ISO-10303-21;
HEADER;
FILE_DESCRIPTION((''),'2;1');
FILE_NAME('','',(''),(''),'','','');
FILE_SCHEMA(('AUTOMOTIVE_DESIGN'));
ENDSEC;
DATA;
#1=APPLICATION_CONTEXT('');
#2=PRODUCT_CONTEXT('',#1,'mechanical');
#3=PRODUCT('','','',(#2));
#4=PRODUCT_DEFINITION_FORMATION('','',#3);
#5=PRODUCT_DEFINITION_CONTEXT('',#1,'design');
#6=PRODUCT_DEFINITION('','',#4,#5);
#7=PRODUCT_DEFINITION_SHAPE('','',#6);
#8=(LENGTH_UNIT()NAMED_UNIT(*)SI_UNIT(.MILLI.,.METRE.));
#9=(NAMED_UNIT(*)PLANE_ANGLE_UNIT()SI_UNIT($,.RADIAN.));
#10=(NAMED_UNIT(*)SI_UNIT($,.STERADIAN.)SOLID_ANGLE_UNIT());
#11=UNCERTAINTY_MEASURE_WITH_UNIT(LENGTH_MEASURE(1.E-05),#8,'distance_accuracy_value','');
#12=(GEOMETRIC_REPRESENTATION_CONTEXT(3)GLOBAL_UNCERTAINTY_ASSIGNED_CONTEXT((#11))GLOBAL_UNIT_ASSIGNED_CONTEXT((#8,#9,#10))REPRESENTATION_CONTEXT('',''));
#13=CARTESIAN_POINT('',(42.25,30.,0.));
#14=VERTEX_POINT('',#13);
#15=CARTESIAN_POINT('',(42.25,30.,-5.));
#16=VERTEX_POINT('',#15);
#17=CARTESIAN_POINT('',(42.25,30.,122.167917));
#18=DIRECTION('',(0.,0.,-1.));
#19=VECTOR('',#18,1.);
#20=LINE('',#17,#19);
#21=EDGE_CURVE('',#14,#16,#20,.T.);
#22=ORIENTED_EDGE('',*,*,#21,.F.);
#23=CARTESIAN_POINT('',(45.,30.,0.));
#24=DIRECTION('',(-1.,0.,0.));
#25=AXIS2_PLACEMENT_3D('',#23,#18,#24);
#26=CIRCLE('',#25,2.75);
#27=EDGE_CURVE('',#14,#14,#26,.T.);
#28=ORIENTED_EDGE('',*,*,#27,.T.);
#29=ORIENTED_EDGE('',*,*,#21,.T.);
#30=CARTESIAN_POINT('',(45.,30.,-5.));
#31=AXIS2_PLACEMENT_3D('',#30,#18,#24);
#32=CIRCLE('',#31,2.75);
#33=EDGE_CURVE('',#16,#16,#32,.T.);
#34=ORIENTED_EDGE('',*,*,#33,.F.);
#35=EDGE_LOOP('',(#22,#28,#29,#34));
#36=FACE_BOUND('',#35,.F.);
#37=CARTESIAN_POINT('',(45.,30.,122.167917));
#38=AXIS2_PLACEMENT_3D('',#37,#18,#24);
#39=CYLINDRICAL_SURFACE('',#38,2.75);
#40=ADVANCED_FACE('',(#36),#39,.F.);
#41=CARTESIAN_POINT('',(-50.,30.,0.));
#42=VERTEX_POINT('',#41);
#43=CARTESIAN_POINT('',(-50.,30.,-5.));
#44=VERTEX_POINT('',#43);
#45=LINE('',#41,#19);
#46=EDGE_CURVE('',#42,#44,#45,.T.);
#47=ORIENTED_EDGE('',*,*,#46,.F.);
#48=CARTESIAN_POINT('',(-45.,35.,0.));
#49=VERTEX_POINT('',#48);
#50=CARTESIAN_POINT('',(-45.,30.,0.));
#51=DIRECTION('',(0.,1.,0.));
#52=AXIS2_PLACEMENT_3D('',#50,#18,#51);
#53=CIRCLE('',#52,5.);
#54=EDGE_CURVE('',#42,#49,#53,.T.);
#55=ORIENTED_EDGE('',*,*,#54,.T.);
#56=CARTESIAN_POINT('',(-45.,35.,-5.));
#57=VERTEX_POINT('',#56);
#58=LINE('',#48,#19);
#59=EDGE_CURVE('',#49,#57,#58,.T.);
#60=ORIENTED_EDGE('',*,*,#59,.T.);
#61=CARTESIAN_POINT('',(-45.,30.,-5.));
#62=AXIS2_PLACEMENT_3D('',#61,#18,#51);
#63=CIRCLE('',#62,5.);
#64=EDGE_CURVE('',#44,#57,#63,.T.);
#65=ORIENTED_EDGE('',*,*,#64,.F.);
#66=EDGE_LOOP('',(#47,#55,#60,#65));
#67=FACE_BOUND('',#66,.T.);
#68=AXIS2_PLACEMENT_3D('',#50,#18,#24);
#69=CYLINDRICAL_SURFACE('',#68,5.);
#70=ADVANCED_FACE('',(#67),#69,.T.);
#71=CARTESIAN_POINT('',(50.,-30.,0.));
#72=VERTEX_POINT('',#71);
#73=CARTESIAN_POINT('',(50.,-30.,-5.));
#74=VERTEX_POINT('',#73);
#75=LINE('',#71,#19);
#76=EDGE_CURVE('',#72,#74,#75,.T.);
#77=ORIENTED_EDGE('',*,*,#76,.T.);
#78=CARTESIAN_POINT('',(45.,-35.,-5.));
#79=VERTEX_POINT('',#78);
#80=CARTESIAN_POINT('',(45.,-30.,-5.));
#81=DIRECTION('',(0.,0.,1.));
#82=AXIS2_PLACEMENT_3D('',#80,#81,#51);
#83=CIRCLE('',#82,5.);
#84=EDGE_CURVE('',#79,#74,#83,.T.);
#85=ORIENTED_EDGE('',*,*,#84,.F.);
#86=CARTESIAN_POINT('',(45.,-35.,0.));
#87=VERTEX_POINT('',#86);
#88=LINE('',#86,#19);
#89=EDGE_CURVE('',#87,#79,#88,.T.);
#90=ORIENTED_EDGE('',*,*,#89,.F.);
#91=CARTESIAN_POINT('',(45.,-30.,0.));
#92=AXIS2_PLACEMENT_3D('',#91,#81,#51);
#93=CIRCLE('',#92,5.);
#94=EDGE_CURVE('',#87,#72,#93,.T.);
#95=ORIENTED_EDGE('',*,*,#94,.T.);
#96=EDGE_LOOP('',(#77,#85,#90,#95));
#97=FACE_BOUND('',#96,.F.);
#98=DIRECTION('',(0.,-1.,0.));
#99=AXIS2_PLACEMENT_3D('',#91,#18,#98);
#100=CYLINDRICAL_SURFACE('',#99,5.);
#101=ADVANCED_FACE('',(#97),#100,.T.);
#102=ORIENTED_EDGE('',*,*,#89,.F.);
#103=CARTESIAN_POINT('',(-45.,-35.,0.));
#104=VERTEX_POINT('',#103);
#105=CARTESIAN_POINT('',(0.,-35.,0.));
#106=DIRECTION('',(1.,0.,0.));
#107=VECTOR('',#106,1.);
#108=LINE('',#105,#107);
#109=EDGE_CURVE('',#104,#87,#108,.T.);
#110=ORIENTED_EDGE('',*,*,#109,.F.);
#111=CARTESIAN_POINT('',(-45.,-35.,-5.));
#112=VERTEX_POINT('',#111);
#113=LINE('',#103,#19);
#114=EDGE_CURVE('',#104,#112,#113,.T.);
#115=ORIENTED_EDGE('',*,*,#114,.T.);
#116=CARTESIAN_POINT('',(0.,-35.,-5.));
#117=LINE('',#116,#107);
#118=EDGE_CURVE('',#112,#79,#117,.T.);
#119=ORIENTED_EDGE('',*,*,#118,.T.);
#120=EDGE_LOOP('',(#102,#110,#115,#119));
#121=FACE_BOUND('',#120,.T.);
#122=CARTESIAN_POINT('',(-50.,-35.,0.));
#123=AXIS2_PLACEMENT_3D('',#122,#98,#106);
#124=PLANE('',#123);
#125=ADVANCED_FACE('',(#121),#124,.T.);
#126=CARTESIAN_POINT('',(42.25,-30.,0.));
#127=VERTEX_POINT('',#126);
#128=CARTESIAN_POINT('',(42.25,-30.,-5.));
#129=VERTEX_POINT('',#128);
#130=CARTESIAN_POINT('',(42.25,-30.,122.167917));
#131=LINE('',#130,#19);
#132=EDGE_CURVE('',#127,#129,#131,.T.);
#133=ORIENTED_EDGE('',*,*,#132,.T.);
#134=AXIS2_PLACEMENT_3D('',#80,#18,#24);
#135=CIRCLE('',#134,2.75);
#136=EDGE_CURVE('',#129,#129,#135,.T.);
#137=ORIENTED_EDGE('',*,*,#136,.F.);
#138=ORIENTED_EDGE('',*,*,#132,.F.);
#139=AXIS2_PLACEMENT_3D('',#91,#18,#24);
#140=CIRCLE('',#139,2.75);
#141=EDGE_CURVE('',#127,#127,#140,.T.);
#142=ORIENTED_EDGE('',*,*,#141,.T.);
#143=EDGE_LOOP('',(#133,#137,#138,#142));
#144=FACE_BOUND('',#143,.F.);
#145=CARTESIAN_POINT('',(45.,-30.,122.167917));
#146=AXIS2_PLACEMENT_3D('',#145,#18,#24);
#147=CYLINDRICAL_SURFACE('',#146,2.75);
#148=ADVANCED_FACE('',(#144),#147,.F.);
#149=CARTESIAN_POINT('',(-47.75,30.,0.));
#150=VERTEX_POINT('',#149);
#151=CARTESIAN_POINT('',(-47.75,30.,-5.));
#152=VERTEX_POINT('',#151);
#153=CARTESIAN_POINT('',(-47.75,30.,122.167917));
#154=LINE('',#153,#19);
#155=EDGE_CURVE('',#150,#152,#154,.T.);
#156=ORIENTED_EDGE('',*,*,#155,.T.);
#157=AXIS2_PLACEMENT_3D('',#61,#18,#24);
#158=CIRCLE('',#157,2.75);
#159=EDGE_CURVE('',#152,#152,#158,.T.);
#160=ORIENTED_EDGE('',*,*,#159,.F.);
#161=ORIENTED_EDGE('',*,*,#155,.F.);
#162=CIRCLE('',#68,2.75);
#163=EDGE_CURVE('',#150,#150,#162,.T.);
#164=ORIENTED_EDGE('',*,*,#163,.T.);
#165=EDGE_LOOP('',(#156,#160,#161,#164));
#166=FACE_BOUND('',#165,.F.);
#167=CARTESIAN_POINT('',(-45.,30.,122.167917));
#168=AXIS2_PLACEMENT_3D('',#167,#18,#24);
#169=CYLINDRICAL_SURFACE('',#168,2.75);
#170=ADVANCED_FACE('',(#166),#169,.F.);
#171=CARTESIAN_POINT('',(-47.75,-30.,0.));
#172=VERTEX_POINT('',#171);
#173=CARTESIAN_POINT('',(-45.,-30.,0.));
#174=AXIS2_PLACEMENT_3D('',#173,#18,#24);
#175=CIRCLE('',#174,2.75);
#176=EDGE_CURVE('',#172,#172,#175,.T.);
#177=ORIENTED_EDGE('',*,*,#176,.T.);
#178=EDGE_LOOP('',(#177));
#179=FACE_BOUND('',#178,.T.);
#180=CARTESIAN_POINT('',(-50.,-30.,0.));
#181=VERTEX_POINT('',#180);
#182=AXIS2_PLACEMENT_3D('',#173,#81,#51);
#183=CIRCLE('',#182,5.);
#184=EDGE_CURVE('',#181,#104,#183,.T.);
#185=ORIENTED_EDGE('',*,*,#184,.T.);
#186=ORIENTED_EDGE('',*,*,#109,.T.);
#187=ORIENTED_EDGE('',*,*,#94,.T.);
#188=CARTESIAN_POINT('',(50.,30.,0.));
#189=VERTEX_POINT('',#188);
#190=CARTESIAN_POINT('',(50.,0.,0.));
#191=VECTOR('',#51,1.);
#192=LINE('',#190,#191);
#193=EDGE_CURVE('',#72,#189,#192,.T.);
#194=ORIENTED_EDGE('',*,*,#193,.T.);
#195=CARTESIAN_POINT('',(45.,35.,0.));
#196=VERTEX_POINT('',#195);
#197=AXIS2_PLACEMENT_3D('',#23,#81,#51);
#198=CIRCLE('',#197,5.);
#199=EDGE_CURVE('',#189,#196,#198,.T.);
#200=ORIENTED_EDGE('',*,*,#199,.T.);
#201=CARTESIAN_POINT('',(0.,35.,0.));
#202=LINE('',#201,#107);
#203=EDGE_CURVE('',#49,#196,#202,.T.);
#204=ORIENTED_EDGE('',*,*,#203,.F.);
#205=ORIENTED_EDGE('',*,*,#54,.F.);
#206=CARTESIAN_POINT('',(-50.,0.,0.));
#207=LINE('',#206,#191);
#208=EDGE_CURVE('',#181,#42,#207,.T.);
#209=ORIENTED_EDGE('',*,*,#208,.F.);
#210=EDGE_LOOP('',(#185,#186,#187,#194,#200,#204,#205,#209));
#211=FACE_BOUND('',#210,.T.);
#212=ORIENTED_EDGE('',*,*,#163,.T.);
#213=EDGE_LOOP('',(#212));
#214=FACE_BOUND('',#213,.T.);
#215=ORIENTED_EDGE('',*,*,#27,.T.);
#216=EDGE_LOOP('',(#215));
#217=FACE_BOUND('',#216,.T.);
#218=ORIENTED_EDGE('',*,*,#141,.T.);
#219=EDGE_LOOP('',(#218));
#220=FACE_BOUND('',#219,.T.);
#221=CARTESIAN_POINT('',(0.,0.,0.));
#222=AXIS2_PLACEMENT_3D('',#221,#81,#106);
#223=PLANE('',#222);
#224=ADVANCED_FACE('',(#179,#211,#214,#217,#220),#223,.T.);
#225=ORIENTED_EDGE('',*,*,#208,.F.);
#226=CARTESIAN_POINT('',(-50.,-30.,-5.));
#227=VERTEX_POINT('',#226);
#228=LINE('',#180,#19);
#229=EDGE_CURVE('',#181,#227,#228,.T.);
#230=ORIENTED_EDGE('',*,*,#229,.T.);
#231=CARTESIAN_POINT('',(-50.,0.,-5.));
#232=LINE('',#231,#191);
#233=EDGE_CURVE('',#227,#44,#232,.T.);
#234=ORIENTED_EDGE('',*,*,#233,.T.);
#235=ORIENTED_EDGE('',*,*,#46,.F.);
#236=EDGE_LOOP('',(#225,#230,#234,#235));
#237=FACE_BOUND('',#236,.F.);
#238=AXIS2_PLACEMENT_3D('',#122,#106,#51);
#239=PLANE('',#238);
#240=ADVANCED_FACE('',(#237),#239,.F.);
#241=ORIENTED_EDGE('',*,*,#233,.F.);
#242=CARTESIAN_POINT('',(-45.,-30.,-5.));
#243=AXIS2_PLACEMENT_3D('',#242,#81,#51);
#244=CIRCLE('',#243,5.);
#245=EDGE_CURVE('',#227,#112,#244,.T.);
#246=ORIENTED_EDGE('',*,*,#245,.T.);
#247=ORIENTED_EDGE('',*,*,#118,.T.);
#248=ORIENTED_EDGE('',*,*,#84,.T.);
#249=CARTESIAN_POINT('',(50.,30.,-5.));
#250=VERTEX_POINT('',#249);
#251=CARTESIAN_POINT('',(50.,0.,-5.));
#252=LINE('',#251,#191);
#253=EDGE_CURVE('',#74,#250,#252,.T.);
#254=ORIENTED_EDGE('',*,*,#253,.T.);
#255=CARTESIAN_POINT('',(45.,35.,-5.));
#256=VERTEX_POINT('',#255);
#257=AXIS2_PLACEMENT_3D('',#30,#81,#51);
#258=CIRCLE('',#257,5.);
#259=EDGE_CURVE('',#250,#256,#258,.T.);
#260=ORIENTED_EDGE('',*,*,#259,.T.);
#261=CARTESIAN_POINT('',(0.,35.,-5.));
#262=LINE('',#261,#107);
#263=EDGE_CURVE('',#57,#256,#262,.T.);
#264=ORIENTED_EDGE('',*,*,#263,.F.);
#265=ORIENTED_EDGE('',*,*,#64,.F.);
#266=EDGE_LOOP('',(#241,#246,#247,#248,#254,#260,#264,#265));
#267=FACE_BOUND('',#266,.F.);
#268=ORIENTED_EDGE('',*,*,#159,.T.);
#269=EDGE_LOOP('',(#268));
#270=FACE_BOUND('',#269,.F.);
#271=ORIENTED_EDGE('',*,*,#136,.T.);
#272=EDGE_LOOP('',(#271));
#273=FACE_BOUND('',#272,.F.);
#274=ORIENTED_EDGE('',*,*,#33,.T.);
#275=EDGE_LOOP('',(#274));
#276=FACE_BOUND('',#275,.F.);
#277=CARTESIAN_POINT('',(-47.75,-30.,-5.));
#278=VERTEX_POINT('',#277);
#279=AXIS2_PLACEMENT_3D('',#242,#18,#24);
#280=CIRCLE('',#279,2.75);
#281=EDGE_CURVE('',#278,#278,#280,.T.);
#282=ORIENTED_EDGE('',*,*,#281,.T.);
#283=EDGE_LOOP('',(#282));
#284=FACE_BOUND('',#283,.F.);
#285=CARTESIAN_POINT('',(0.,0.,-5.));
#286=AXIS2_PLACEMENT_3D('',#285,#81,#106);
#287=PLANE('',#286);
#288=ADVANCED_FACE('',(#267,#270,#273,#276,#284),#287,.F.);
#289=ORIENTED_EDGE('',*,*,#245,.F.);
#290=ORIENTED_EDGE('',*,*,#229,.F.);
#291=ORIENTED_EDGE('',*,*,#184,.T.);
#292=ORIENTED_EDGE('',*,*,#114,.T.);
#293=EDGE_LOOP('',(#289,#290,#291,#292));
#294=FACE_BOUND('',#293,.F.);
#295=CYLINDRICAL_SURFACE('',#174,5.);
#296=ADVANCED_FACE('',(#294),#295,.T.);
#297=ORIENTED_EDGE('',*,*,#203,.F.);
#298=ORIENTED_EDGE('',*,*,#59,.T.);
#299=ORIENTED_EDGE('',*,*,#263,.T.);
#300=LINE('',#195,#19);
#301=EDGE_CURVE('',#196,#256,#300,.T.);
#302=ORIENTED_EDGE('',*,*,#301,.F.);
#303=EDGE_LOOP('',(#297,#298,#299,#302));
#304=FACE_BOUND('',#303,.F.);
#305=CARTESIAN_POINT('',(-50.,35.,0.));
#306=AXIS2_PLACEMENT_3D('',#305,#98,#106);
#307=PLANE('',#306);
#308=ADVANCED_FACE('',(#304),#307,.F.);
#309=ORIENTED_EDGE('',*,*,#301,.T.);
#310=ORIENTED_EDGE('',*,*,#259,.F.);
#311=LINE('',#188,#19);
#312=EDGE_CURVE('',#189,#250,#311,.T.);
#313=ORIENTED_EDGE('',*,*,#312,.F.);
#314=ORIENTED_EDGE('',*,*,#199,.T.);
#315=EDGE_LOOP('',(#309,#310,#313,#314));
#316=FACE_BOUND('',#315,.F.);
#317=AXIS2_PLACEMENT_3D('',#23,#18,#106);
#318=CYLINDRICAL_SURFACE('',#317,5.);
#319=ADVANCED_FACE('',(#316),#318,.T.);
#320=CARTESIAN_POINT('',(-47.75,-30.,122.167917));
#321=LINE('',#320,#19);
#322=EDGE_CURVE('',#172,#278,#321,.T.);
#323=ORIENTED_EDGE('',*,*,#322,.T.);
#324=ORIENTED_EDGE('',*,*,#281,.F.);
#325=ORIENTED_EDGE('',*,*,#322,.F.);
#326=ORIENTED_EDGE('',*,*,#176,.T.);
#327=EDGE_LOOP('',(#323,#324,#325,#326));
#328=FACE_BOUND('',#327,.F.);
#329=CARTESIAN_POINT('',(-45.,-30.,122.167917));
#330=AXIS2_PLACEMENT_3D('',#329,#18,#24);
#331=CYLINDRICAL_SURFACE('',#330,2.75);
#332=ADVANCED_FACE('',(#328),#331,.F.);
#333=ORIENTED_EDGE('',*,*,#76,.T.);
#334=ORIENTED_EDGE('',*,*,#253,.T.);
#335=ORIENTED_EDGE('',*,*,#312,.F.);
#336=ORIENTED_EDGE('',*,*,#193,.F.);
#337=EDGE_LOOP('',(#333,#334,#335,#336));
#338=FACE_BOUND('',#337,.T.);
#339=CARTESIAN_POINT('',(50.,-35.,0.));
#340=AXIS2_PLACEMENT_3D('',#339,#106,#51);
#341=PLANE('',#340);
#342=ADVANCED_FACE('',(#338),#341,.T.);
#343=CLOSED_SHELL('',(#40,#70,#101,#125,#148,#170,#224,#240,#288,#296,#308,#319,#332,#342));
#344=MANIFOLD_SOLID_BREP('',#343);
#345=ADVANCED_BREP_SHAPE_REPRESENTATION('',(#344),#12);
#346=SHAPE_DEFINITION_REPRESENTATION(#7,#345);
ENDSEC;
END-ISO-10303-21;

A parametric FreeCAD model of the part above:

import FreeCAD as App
import Part
import Sketcher
from FreeCAD import Vector
Q = App.Units.Quantity


def edges_at(feature, points):
    """Names of the edges that pass closest to the given points."""
    edges = feature.Shape.Edges
    near = lambda p: min(range(len(edges)), key=lambda i: edges[i].distToShape(Part.Vertex(*p))[0])
    return sorted({f"Edge{near(p) + 1}" for p in points})


def add_polygon(sketch, points):
    """Adds a closed chain of lines whose ends are joined by coincident constraints."""
    first, n = sketch.GeometryCount, len(points)
    for a, b in zip(points, points[1:] + points[:1]):
        sketch.addGeometry(Part.LineSegment(App.Vector(*a, 0), App.Vector(*b, 0)), False)
    for i in range(n):
        sketch.addConstraint(Sketcher.Constraint("Coincident", first + i, 2, first + (i + 1) % n, 1))

doc = App.newDocument("Part")
body = doc.addObject("PartDesign::Body", "Body")

# Sketch on XY plane
sketch1 = body.newObject("Sketcher::SketchObject", "Sketch")
sketch1.AttachmentSupport = (doc.getObject("XY_Plane"), [""])
sketch1.MapMode = "FlatFace"
add_polygon(sketch1, [(-50, 35), (-50, -35), (50, -35), (50, 35)])  # lines 0-3
sketch1.addConstraint([
    Sketcher.Constraint("Vertical", 0),
    Sketcher.Constraint("Horizontal", 1),
    Sketcher.Constraint("Vertical", 2),
    Sketcher.Constraint("Horizontal", 3),
    Sketcher.Constraint("Symmetric", 0, 2, 2, 2, -1, 1),
    Sketcher.Constraint("DistanceX", 1, 1, 1, 2, Q("100 mm")),
    Sketcher.Constraint("DistanceY", 0, 2, 0, 1, Q("70 mm")),
])
pad1 = body.newObject("PartDesign::Pad", "Pad")
pad1.Profile = sketch1
pad1.Length = 5
pad1.Reversed = True
doc.recompute()

fillet = body.newObject("PartDesign::Fillet", "Fillet")
fillet.Base = (pad1, edges_at(pad1, [
    (-50, -35, -2.5),
    (-50, 35, -2.5),
    (50, -35, -2.5),
    (50, 35, -2.5),
]))
fillet.Radius = 5

# Sketch on XY plane
sketch2 = body.newObject("Sketcher::SketchObject", "Sketch001")
sketch2.AttachmentSupport = (doc.getObject("XY_Plane"), [""])
sketch2.MapMode = "FlatFace"
sketch2.addGeometry([
    Part.Circle(Vector(-45, 30, 0), Vector(0, 0, 1), 2.8),
    Part.Circle(Vector(-45, -30, 0), Vector(0, 0, 1), 2.8),
    Part.Circle(Vector(45, -30, 0), Vector(0, 0, 1), 2.8),
    Part.Circle(Vector(45, 30, 0), Vector(0, 0, 1), 2.8),
], False)
sketch2.addConstraint([
    Sketcher.Constraint("Equal", 0, 1),
    Sketcher.Constraint("Equal", 1, 2),
    Sketcher.Constraint("Equal", 2, 3),
    Sketcher.Constraint("Symmetric", 0, 3, 2, 3, -1, 1),
    Sketcher.Constraint("Symmetric", 1, 3, 3, 3, -1, 1),
    Sketcher.Constraint("Symmetric", 1, 3, 2, 3, -2),
    Sketcher.Constraint("Diameter", 0, Q("5.5 mm")),
    Sketcher.Constraint("DistanceX", 0, 3, -1, 1, Q("45 mm")),
    Sketcher.Constraint("DistanceY", -1, 1, 0, 3, Q("30 mm")),
])
doc.recompute()
hole = body.newObject("PartDesign::Hole", "Hole")
hole.Profile = sketch2
hole.ThreadType = "None"
hole.Diameter = 5.5
hole.DepthType = "ThroughAll"

doc.recompute()
